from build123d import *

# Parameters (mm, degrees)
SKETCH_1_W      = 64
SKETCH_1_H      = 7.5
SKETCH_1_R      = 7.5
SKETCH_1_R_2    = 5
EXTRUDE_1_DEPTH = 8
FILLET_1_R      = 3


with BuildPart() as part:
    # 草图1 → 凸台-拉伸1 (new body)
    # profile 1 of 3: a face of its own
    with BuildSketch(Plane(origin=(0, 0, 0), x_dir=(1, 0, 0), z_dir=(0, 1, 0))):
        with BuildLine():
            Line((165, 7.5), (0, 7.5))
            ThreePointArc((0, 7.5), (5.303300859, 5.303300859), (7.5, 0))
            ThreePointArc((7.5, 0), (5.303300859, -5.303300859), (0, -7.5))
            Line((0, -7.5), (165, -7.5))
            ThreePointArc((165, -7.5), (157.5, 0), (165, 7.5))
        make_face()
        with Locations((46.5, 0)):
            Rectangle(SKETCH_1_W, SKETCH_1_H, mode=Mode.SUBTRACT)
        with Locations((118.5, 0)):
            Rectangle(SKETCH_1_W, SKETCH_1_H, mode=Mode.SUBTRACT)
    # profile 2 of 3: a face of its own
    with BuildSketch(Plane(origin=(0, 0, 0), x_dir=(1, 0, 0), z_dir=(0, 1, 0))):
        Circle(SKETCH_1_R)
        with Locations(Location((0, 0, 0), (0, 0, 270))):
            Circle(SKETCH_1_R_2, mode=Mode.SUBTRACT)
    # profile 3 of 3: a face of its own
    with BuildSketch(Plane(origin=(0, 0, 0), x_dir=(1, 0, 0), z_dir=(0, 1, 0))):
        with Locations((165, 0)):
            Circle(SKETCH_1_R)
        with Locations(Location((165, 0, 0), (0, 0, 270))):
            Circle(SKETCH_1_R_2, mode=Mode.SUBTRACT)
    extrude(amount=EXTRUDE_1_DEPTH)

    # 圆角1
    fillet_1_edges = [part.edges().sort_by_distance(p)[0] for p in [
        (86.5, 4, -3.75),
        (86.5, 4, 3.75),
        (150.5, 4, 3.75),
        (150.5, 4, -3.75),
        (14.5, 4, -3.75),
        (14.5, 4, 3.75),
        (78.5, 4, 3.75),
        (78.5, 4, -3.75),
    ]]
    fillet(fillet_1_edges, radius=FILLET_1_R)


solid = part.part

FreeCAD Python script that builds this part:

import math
import FreeCAD as App
import Part
import Sketcher


def edges_at(feature, points):
    """Names of the edges that pass closest to the given points."""
    edges = feature.Shape.Edges
    near = lambda p: min(range(len(edges)), key=lambda i: edges[i].distToShape(Part.Vertex(*p))[0])
    return sorted({f"Edge{near(p) + 1}" for p in points})


def add_polygon(sketch, points):
    """Adds a closed chain of lines whose ends are joined by coincident constraints."""
    first, n = sketch.GeometryCount, len(points)
    for a, b in zip(points, points[1:] + points[:1]):
        sketch.addGeometry(Part.LineSegment(App.Vector(*a, 0), App.Vector(*b, 0)), False)
    for i in range(n):
        sketch.addConstraint(Sketcher.Constraint("Coincident", first + i, 2, first + (i + 1) % n, 1))

doc = App.newDocument("Part")
params = doc.addObject("Spreadsheet::Sheet", "Params")
for row, (alias, value) in enumerate([
    ("sketch1_diameter", "10 mm"),
    ("sketch1_radius", "7.5 mm"),
    ("sketch1_width", "165 mm"),
    ("sketch1_width2", "64 mm"),
    ("sketch1_height", "7.5 mm"),
    ("pad1_length", "8 mm"),
    ("fillet_radius", "3 mm"),
], start=1):
    params.set(f"A{row}", alias)
    params.set(f"B{row}", "=" + value)
    params.setAlias(f"B{row}", alias)

body = doc.addObject("PartDesign::Body", "Body")

# Sketch on XZ plane
sketch1 = body.newObject("Sketcher::SketchObject", "Sketch")
sketch1.AttachmentSupport = (doc.getObject("XZ_Plane"), [""])
sketch1.MapMode = "FlatFace"
sketch1.addGeometry(Part.LineSegment(App.Vector(165, -8, 0), App.Vector(0, -8, 0)), False)  # 0
sketch1.addGeometry(Part.ArcOfCircle(Part.Circle(App.Vector(0, 0, 0), App.Vector(0, 0, 1), 8), math.radians(90), math.radians(270)), False)  # 1
sketch1.addGeometry(Part.LineSegment(App.Vector(0, 8, 0), App.Vector(165, 8, 0)), False)  # 2
sketch1.addGeometry(Part.ArcOfCircle(Part.Circle(App.Vector(165, 0, 0), App.Vector(0, 0, 1), 8), math.radians(-90), math.radians(90)), False)  # 3
add_polygon(sketch1, [(78, 4), (14, 4), (14, -4), (78, -4)])  # lines 4-7
add_polygon(sketch1, [(150, 4), (86, 4), (86, -4), (150, -4)])  # lines 8-11
sketch1.addGeometry(Part.Circle(App.Vector(165, 0, 0), App.Vector(0, 0, 1), 5), False)  # 12
sketch1.addGeometry(Part.Circle(App.Vector(0, 0, 0), App.Vector(0, 0, 1), 5), False)  # 13
sketch1.addConstraint(Sketcher.Constraint("Tangent", 0, 2, 1, 2))
sketch1.addConstraint(Sketcher.Constraint("Tangent", 1, 1, 2, 1))
sketch1.addConstraint(Sketcher.Constraint("Tangent", 2, 2, 3, 2))
sketch1.addConstraint(Sketcher.Constraint("Tangent", 3, 1, 0, 1))
sketch1.addConstraint(Sketcher.Constraint("Horizontal", 0))
sketch1.addConstraint(Sketcher.Constraint("Horizontal", 2))
sketch1.addConstraint(Sketcher.Constraint("Horizontal", 4))
sketch1.addConstraint(Sketcher.Constraint("Vertical", 5))
sketch1.addConstraint(Sketcher.Constraint("Horizontal", 6))
sketch1.addConstraint(Sketcher.Constraint("Vertical", 7))
sketch1.addConstraint(Sketcher.Constraint("Horizontal", 8))
sketch1.addConstraint(Sketcher.Constraint("Vertical", 9))
sketch1.addConstraint(Sketcher.Constraint("Horizontal", 10))
sketch1.addConstraint(Sketcher.Constraint("Vertical", 11))
sketch1.addConstraint(Sketcher.Constraint("Coincident", 1, 3, -1, 1))
sketch1.addConstraint(Sketcher.Constraint("Coincident", 13, 3, -1, 1))
sketch1.addConstraint(Sketcher.Constraint("Coincident", 12, 3, 3, 3))
sketch1.addConstraint(Sketcher.Constraint("Equal", 12, 13))
sketch1.addConstraint(Sketcher.Constraint("Horizontal", 7, 2, 8, 2))
sketch1.addConstraint(Sketcher.Constraint("Horizontal", 6, 2, 9, 2))
sketch1.addConstraint(Sketcher.Constraint("Equal", 6, 8))
sketch1.addConstraint(Sketcher.Constraint("Diameter", 12, 10.0))
sketch1.addConstraint(Sketcher.Constraint("Radius", 1, 7.5))
sketch1.addConstraint(Sketcher.Constraint("DistanceX", 0, 2, 0, 1, 165.0))
sketch1.addConstraint(Sketcher.Constraint("DistanceX", 4, 2, 4, 1, 64.0))
sketch1.addConstraint(Sketcher.Constraint("DistanceY", 5, 2, 5, 1, 7.5))
sketch1.addConstraint(Sketcher.Constraint("DistanceX", 7, 2, 8, 2, 8.0))
sketch1.addConstraint(Sketcher.Constraint("DistanceX", -1, 1, 4, 2, 14.5))
sketch1.addConstraint(Sketcher.Constraint("DistanceY", -1, 1, 4, 2, 3.75))
sketch1.setExpression("Constraints[29]", "Params.sketch1_diameter")
sketch1.setExpression("Constraints[30]", "Params.sketch1_radius")
sketch1.setExpression("Constraints[31]", "Params.sketch1_width")
sketch1.setExpression("Constraints[32]", "Params.sketch1_width2")
sketch1.setExpression("Constraints[33]", "Params.sketch1_height")
pad1 = body.newObject("PartDesign::Pad", "Pad")
pad1.Profile = sketch1
pad1.setExpression("Length", "Params.pad1_length")
pad1.Reversed = True
doc.recompute()

fillet = body.newObject("PartDesign::Fillet", "Fillet")
fillet.Base = (pad1, edges_at(pad1, [
    (86.5, 4, -3.75),
    (86.5, 4, 3.75),
    (150.5, 4, 3.75),
    (150.5, 4, -3.75),
    (14.5, 4, -3.75),
    (14.5, 4, 3.75),
    (78.5, 4, 3.75),
    (78.5, 4, -3.75),
]))
fillet.setExpression("Radius", "Params.fillet_radius")

doc.recompute()
